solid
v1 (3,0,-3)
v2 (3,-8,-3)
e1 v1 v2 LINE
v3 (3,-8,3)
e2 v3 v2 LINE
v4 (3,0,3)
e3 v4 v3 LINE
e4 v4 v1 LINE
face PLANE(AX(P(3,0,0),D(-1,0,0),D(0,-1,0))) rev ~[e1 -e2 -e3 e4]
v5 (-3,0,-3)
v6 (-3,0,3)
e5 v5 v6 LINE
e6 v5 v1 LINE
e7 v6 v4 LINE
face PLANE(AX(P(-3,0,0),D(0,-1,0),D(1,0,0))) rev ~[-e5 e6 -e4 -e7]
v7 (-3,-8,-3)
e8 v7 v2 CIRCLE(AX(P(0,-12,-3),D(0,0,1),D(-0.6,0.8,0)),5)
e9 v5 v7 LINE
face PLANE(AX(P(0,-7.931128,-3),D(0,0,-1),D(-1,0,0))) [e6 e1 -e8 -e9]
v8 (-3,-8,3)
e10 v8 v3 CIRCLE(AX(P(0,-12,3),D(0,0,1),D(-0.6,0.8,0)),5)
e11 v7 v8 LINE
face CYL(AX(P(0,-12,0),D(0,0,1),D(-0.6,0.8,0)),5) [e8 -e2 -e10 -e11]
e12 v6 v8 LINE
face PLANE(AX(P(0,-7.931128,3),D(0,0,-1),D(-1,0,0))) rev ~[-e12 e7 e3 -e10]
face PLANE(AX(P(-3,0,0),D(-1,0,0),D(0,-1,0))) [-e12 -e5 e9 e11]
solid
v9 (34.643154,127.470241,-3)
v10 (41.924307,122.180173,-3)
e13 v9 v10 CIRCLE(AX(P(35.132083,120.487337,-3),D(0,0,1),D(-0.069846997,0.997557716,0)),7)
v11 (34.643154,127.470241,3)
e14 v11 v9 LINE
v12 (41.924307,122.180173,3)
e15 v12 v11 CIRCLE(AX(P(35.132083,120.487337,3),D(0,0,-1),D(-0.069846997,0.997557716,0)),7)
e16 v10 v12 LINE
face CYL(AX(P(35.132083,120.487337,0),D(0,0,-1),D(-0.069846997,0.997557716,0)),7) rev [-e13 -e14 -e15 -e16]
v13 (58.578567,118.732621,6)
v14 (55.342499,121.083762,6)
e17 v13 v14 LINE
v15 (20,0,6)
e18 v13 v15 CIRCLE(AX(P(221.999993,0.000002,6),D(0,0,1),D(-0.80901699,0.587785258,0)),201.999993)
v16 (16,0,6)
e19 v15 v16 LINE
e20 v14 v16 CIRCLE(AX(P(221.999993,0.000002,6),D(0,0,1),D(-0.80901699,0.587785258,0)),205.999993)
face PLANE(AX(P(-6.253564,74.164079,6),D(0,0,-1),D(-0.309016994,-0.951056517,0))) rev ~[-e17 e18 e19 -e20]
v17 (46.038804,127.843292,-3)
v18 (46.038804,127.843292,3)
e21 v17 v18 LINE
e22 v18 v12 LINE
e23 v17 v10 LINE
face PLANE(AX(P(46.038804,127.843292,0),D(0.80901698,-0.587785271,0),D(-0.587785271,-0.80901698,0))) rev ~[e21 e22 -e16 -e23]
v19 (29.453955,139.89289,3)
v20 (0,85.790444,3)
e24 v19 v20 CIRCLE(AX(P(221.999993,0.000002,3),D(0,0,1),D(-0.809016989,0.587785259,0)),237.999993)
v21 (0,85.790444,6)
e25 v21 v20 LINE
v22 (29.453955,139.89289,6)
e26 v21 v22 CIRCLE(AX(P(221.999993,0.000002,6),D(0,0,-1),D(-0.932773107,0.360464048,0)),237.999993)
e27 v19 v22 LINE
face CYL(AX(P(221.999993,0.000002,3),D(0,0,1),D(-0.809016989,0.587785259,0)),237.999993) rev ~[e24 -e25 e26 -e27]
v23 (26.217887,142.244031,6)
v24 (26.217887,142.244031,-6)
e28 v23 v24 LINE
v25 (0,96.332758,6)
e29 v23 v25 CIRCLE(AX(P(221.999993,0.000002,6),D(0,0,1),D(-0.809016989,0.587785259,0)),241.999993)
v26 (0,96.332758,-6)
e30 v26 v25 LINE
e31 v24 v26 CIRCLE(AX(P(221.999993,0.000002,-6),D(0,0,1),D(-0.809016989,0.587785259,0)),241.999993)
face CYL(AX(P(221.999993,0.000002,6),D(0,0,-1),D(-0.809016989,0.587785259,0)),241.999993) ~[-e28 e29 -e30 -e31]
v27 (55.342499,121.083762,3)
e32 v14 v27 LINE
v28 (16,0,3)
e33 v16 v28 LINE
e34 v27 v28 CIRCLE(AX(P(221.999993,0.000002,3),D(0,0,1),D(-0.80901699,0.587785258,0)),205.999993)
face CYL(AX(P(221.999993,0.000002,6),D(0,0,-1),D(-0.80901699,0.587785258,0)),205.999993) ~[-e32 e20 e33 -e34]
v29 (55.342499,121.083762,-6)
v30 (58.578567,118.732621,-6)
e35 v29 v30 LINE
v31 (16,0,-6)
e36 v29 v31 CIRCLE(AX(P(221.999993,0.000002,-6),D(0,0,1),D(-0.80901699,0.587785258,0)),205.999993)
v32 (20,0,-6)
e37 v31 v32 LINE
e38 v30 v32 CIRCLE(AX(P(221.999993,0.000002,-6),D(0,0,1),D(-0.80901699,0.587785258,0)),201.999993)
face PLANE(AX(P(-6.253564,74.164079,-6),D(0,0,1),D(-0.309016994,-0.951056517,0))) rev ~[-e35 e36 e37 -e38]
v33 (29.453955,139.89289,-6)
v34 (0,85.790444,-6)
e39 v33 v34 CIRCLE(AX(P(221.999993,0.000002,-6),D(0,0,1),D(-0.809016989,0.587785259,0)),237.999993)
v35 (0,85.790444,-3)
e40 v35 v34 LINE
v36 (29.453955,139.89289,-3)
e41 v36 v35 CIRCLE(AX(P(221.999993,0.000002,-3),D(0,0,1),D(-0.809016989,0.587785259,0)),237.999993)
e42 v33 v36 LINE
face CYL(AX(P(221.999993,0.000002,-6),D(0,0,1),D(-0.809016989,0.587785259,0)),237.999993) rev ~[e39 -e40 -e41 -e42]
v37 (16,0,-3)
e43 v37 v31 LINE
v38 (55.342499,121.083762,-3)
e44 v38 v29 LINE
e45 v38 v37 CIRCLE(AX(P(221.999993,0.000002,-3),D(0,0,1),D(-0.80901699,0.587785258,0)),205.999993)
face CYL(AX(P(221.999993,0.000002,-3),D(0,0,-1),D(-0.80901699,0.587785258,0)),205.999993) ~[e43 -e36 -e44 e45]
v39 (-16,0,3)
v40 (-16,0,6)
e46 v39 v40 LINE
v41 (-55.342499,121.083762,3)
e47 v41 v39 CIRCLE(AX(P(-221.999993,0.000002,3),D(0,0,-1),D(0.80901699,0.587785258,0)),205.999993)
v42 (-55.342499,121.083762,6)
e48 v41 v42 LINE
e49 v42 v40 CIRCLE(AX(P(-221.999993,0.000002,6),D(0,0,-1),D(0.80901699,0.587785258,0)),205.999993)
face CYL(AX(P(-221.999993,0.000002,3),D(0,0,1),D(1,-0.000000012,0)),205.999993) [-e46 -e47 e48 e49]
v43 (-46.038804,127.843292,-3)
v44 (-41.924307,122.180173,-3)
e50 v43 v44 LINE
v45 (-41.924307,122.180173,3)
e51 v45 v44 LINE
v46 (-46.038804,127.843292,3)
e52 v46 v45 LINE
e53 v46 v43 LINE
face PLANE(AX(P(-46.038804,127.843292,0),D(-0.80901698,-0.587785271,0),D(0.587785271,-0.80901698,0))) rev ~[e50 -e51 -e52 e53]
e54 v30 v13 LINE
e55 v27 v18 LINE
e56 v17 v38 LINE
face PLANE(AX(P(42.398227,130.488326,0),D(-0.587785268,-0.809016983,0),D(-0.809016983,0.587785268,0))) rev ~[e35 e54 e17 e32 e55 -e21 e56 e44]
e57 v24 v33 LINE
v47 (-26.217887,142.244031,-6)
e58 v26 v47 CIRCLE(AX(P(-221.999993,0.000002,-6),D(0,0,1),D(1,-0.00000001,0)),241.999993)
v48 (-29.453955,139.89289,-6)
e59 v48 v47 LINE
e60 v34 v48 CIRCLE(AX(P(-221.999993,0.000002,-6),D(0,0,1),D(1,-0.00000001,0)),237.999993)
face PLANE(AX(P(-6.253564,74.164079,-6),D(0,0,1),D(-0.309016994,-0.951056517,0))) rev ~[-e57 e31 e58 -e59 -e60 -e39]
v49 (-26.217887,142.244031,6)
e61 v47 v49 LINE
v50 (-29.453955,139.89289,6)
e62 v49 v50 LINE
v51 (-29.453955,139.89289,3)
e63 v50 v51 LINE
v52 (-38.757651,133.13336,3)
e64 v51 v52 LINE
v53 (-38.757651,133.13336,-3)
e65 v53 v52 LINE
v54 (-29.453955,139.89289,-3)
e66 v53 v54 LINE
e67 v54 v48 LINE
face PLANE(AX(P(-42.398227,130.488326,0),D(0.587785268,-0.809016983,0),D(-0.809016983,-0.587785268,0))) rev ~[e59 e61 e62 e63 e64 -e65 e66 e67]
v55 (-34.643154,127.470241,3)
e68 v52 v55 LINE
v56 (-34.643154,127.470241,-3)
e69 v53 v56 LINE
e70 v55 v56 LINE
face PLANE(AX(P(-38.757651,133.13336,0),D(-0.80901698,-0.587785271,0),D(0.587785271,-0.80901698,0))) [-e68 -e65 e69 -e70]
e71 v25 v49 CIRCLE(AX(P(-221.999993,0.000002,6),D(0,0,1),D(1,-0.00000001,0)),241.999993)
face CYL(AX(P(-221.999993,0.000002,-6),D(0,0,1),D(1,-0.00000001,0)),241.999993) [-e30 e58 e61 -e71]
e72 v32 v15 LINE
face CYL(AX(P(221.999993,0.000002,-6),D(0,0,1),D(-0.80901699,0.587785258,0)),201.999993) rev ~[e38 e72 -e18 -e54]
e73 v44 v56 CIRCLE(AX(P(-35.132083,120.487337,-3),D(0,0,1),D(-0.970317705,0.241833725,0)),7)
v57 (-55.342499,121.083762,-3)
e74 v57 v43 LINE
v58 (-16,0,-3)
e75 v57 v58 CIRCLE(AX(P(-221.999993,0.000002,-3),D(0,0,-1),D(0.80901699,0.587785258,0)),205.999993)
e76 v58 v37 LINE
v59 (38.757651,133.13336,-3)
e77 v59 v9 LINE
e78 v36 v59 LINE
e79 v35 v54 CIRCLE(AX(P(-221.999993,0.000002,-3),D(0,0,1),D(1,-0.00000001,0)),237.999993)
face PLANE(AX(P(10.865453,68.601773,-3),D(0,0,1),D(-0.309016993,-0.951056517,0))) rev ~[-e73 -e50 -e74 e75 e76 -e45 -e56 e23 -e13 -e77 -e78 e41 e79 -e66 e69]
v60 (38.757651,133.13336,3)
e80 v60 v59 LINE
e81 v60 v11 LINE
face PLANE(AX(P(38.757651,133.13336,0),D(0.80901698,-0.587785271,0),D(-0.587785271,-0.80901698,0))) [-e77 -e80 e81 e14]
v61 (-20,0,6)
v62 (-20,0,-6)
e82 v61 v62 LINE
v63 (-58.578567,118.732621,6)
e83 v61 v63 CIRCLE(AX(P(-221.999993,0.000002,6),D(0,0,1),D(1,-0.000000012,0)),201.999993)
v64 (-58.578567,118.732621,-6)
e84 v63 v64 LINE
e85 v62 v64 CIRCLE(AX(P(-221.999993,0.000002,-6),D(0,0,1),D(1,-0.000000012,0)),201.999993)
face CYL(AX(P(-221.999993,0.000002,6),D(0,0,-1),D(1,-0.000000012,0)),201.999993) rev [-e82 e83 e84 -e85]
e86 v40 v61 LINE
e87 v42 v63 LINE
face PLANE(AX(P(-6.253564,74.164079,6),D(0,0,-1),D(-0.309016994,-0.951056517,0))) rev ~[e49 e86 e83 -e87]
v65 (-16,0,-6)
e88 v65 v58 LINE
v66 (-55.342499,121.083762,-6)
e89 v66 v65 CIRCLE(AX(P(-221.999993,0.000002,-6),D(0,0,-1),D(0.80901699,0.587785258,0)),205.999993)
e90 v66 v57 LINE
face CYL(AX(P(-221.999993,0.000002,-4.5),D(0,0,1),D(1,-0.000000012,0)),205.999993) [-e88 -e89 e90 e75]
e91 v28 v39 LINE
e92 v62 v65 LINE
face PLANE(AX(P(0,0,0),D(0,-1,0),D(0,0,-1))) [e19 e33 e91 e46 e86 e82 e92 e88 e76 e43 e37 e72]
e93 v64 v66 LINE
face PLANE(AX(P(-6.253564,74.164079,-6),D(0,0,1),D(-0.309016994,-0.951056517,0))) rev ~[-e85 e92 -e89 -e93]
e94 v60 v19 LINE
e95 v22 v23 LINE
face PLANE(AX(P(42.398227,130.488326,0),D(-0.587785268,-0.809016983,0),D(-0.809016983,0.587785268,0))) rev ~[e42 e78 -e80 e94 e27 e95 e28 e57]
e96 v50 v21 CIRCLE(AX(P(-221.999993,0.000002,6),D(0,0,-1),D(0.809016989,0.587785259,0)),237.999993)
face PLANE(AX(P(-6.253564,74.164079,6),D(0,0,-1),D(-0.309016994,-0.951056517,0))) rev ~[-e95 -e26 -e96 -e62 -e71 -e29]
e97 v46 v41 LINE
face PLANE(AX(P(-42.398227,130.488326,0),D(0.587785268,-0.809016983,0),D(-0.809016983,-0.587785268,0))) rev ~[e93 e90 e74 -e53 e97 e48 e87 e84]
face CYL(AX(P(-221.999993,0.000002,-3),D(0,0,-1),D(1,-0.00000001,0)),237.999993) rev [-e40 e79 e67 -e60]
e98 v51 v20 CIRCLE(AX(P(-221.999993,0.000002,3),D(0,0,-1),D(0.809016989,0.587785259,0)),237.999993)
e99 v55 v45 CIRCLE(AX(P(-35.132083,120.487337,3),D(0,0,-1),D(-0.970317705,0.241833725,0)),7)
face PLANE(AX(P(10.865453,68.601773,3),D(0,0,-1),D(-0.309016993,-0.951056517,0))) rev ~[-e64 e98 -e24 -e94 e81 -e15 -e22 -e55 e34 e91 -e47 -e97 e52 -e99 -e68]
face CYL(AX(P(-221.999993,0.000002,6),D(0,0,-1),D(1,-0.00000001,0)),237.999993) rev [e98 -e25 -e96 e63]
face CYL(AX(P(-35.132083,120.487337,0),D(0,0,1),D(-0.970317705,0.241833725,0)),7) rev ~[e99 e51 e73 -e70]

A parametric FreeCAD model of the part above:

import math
import FreeCAD as App
import Part
import Sketcher

V = App.Vector
Q = App.Units.Quantity


def add_polygon(sketch, points):
    """Adds a closed chain of lines whose ends are joined by coincident constraints."""
    first, n = sketch.GeometryCount, len(points)
    for a, b in zip(points, points[1:] + points[:1]):
        sketch.addGeometry(Part.LineSegment(App.Vector(*a, 0), App.Vector(*b, 0)), False)
    for i in range(n):
        sketch.addConstraint(Sketcher.Constraint("Coincident", first + i, 2, first + (i + 1) % n, 1))

doc = App.newDocument("Part")
body = doc.addObject("PartDesign::Body", "Body")

sketch1 = body.newObject("Sketcher::SketchObject", "Sketch")
sketch1.AttachmentSupport = (doc.getObject("XZ_Plane"), [""])
sketch1.MapMode = "FlatFace"
add_polygon(sketch1, [(-20, 6), (-20, -6), (-16, -6), (-16, -3), (16, -3), (16, -6), (20, -6), (20, 6), (16, 6), (16, 3), (-16, 3), (-16, 6)])
sketch1.addConstraint([
    Sketcher.Constraint("Vertical", 0),
    Sketcher.Constraint("Horizontal", 1),
    Sketcher.Constraint("Vertical", 2),
    Sketcher.Constraint("Horizontal", 3),
    Sketcher.Constraint("Vertical", 4),
    Sketcher.Constraint("Horizontal", 5),
    Sketcher.Constraint("Vertical", 6),
    Sketcher.Constraint("Horizontal", 7),
    Sketcher.Constraint("Vertical", 8),
    Sketcher.Constraint("Horizontal", 9),
    Sketcher.Constraint("Vertical", 10),
    Sketcher.Constraint("Horizontal", 11),
    Sketcher.Constraint("Symmetric", 0, 2, 6, 2, -1, 1),
    Sketcher.Constraint("Symmetric", 2, 2, 8, 2, -1, 1),
    Sketcher.Constraint("Symmetric", 4, 2, 10, 2, -1, 1),
    Sketcher.Constraint("Symmetric", 1, 2, 4, 2, -2),
    Sketcher.Constraint("DistanceX", 1, 1, 1, 2, 4.0),
    Sketcher.Constraint("DistanceX", 3, 1, 3, 2, 32.0),
    Sketcher.Constraint("DistanceY", 0, 2, 0, 1, 12.0),
    Sketcher.Constraint("DistanceY", 2, 1, 2, 2, 3.0),
])

sketch2 = body.newObject("Sketcher::SketchObject", "Sketch001")
sketch2.AttachmentSupport = (doc.getObject("XY_Plane"), [""])
sketch2.MapMode = "FlatFace"
sketch2.addGeometry(Part.ArcOfCircle(Part.Circle(V(-221.999993, 0.000002, 0), V(0, 0, 1), 221.999993), math.radians(-0.000001), math.radians(36)), False)
sketch2.addConstraint([
    Sketcher.Constraint("Coincident", 0, 1, -1, 1),
    Sketcher.Constraint("Radius", 0, 221.999993),
    Sketcher.Constraint("DistanceX", 0, 2, -1, 1, 42.398227),
    Sketcher.Constraint("DistanceY", -1, 1, 0, 2, 130.488326),
])
doc.recompute()

additivepipe = body.newObject("PartDesign::AdditivePipe", "AdditivePipe")
additivepipe.Profile = sketch1
additivepipe.Spine = (sketch2, ["Edge1"])

sketch3 = body.newObject("Sketcher::SketchObject", "Sketch002")
sketch3.AttachmentSupport = (doc.getObject("XZ_Plane"), [""])
sketch3.MapMode = "FlatFace"
add_polygon(sketch3, [(-20, 6), (-20, -6), (-16, -6), (-16, -3), (16, -3), (16, -6), (20, -6), (20, 6), (16, 6), (16, 3), (-16, 3), (-16, 6)])
sketch3.addConstraint([
    Sketcher.Constraint("Vertical", 0),
    Sketcher.Constraint("Horizontal", 1),
    Sketcher.Constraint("Vertical", 2),
    Sketcher.Constraint("Horizontal", 3),
    Sketcher.Constraint("Vertical", 4),
    Sketcher.Constraint("Horizontal", 5),
    Sketcher.Constraint("Vertical", 6),
    Sketcher.Constraint("Horizontal", 7),
    Sketcher.Constraint("Vertical", 8),
    Sketcher.Constraint("Horizontal", 9),
    Sketcher.Constraint("Vertical", 10),
    Sketcher.Constraint("Horizontal", 11),
    Sketcher.Constraint("Symmetric", 0, 2, 6, 2, -1, 1),
    Sketcher.Constraint("Symmetric", 2, 2, 8, 2, -1, 1),
    Sketcher.Constraint("Symmetric", 4, 2, 10, 2, -1, 1),
    Sketcher.Constraint("Symmetric", 1, 2, 4, 2, -2),
    Sketcher.Constraint("DistanceX", 1, 1, 1, 2, 4.0),
    Sketcher.Constraint("DistanceX", 3, 1, 3, 2, 32.0),
    Sketcher.Constraint("DistanceY", 0, 2, 0, 1, 12.0),
    Sketcher.Constraint("DistanceY", 2, 1, 2, 2, 3.0),
])

sketch4 = body.newObject("Sketcher::SketchObject", "Sketch003")
sketch4.AttachmentSupport = (doc.getObject("XY_Plane"), [""])
sketch4.MapMode = "FlatFace"
sketch4.addGeometry(Part.ArcOfCircle(Part.Circle(V(221.999993, 0.000002, 0), V(0, 0, 1), 221.999993), math.radians(144), math.radians(180.000001)), False)
sketch4.addConstraint([
    Sketcher.Constraint("Coincident", 0, 2, -1, 1),
    Sketcher.Constraint("Radius", 0, 221.999993),
    Sketcher.Constraint("DistanceX", -1, 1, 0, 1, 42.398227),
    Sketcher.Constraint("DistanceY", -1, 1, 0, 1, 130.488326),
])
doc.recompute()

additivepipe2 = body.newObject("PartDesign::AdditivePipe", "AdditivePipe001")
additivepipe2.Profile = sketch3
additivepipe2.Spine = (sketch4, ["Edge1"])

sketch5 = body.newObject("Sketcher::SketchObject", "Sketch004")
sketch5.AttachmentSupport = (doc.getObject("XZ_Plane"), [""])
sketch5.MapMode = "FlatFace"
add_polygon(sketch5, [(-16, 6), (-16, 3), (16, 3), (16, 6)])
sketch5.addConstraint([
    Sketcher.Constraint("Vertical", 0),
    Sketcher.Constraint("Horizontal", 1),
    Sketcher.Constraint("Vertical", 2),
    Sketcher.Constraint("Horizontal", 3),
    Sketcher.Constraint("DistanceX", 1, 1, 1, 2, 32.0),
    Sketcher.Constraint("DistanceY", 0, 2, 0, 1, 3.0),
    Sketcher.Constraint("DistanceX", 0, 2, -1, 1, 16.0),
    Sketcher.Constraint("DistanceY", -1, 1, 0, 2, 3.0),
])

sketch6 = body.newObject("Sketcher::SketchObject", "Sketch005")
sketch6.AttachmentSupport = (doc.getObject("XY_Plane"), [""])
sketch6.MapMode = "FlatFace"
sketch6.addGeometry(Part.ArcOfCircle(Part.Circle(V(-221.999993, 0.000002, 0), V(0, 0, 1), 221.999993), math.radians(-0.000001), math.radians(36)), False)
sketch6.addConstraint([
    Sketcher.Constraint("Coincident", 0, 1, -1, 1),
    Sketcher.Constraint("Radius", 0, 221.999993),
    Sketcher.Constraint("DistanceX", 0, 2, -1, 1, 42.398227),
    Sketcher.Constraint("DistanceY", -1, 1, 0, 2, 130.488326),
])
doc.recompute()

subtractivepipe = body.newObject("PartDesign::SubtractivePipe", "SubtractivePipe")
subtractivepipe.Profile = sketch5
subtractivepipe.Spine = (sketch6, ["Edge1"])

sketch7 = body.newObject("Sketcher::SketchObject", "Sketch006")
sketch7.AttachmentSupport = (doc.getObject("XZ_Plane"), [""])
sketch7.MapMode = "FlatFace"
add_polygon(sketch7, [(-16, 6), (-16, 3), (16, 3), (16, 6)])
sketch7.addConstraint([
    Sketcher.Constraint("Vertical", 0),
    Sketcher.Constraint("Horizontal", 1),
    Sketcher.Constraint("Vertical", 2),
    Sketcher.Constraint("Horizontal", 3),
    Sketcher.Constraint("DistanceX", 1, 1, 1, 2, 32.0),
    Sketcher.Constraint("DistanceY", 0, 2, 0, 1, 3.0),
    Sketcher.Constraint("DistanceX", 0, 2, -1, 1, 16.0),
    Sketcher.Constraint("DistanceY", -1, 1, 0, 2, 3.0),
])

sketch8 = body.newObject("Sketcher::SketchObject", "Sketch007")
sketch8.AttachmentSupport = (doc.getObject("XY_Plane"), [""])
sketch8.MapMode = "FlatFace"
sketch8.addGeometry(Part.ArcOfCircle(Part.Circle(V(221.999993, 0.000002, 0), V(0, 0, 1), 221.999993), math.radians(144), math.radians(180.000001)), False)
sketch8.addConstraint([
    Sketcher.Constraint("Coincident", 0, 2, -1, 1),
    Sketcher.Constraint("Radius", 0, 221.999993),
    Sketcher.Constraint("DistanceX", -1, 1, 0, 1, 42.398227),
    Sketcher.Constraint("DistanceY", -1, 1, 0, 1, 130.488326),
])
doc.recompute()

subtractivepipe2 = body.newObject("PartDesign::SubtractivePipe", "SubtractivePipe001")
subtractivepipe2.Profile = sketch7
subtractivepipe2.Spine = (sketch8, ["Edge1"])
doc.recompute()

mirrored = body.newObject("PartDesign::Mirrored", "Mirrored")
mirrored.Originals = [subtractivepipe]
mirrored.MirrorPlane = (doc.getObject("XY_Plane"), [""])
body.Tip = mirrored
doc.recompute()

mirrored2 = body.newObject("PartDesign::Mirrored", "Mirrored001")
mirrored2.Originals = [subtractivepipe2]
mirrored2.MirrorPlane = (doc.getObject("XY_Plane"), [""])
body.Tip = mirrored2

sketch9 = body.newObject("Sketcher::SketchObject", "Sketch008")
sketch9.AttachmentSupport = (doc.getObject("XY_Plane"), [""])
sketch9.MapMode = "FlatFace"
sketch9.addGeometry([
    Part.LineSegment(V(46.038804, 127.843292, 0), V(38.757651, 133.13336, 0)),
    Part.LineSegment(V(38.757651, 133.13336, 0), V(34.643154, 127.470241, 0)),
    Part.ArcOfCircle(Part.Circle(V(35.132083, 120.487337, 0), V(0, 0, 1), 7), math.radians(94.005199), math.radians(373.994794)),
    Part.LineSegment(V(41.924307, 122.180173, 0), V(46.038804, 127.843292, 0)),
], False)
sketch9.addConstraint([
    Sketcher.Constraint("Coincident", 0, 2, 1, 1),
    Sketcher.Constraint("Coincident", 1, 2, 2, 1),
    Sketcher.Constraint("Coincident", 2, 2, 3, 1),
    Sketcher.Constraint("Coincident", 3, 2, 0, 1),
    Sketcher.Constraint("Perpendicular", 0, 1),
    Sketcher.Constraint("Parallel", 1, 3),
    Sketcher.Constraint("Equal", 1, 3),
    Sketcher.Constraint("Radius", 2, 7.0),
    Sketcher.Constraint("Angle", 0, Q("143.999996 deg")),
    Sketcher.Constraint("Distance", 0, 9.0),
    Sketcher.Constraint("Distance", 1, 7.0),
    Sketcher.Constraint("DistanceX", -1, 1, 0, 2, 38.757651),
    Sketcher.Constraint("DistanceY", -1, 1, 0, 2, 133.13336),
])
pocket1 = body.newObject("PartDesign::Pocket", "Pocket")
pocket1.Profile = sketch9
pocket1.Type = "ThroughAll"
pocket1.Midplane = True

sketch10 = body.newObject("Sketcher::SketchObject", "Sketch009")
sketch10.AttachmentSupport = (doc.getObject("XY_Plane"), [""])
sketch10.MapMode = "FlatFace"
sketch10.addGeometry([
    Part.LineSegment(V(-38.757651, 133.13336, 0), V(-46.038804, 127.843292, 0)),
    Part.LineSegment(V(-46.038804, 127.843292, 0), V(-41.924307, 122.180173, 0)),
    Part.ArcOfCircle(Part.Circle(V(-35.132083, 120.487337, 0), V(0, 0, 1), 7), math.radians(166.005206), math.radians(445.994801)),
    Part.LineSegment(V(-34.643154, 127.470241, 0), V(-38.757651, 133.13336, 0)),
], False)
sketch10.addConstraint([
    Sketcher.Constraint("Coincident", 0, 2, 1, 1),
    Sketcher.Constraint("Coincident", 1, 2, 2, 1),
    Sketcher.Constraint("Coincident", 2, 2, 3, 1),
    Sketcher.Constraint("Coincident", 3, 2, 0, 1),
    Sketcher.Constraint("Perpendicular", 0, 1),
    Sketcher.Constraint("Parallel", 1, 3),
    Sketcher.Constraint("Equal", 1, 3),
    Sketcher.Constraint("Radius", 2, 7.0),
    Sketcher.Constraint("Angle", 0, Q("-143.999996 deg")),
    Sketcher.Constraint("Distance", 0, 9.0),
    Sketcher.Constraint("Distance", 1, 7.0),
    Sketcher.Constraint("DistanceY", -1, 1, 2, 2, 127.470241),
    Sketcher.Constraint("DistanceX", 3, 2, -1, 1, 38.757651),
])
pocket2 = body.newObject("PartDesign::Pocket", "Pocket001")
pocket2.Profile = sketch10
pocket2.Type = "ThroughAll"
pocket2.Midplane = True
body2 = doc.addObject("PartDesign::Body", "Body001")

sketch11 = body2.newObject("Sketcher::SketchObject", "Sketch010")
sketch11.AttachmentSupport = (doc.getObject("XY_Plane001"), [""])
sketch11.MapMode = "FlatFace"
sketch11.addGeometry([
    Part.LineSegment(V(3, 0, 0), V(-3, 0, 0)),
    Part.LineSegment(V(-3, 0, 0), V(-3, -8, 0)),
    Part.ArcOfCircle(Part.Circle(V(0, -12, 0), V(0, 0, 1), 5), math.radians(126.869898), math.radians(413.130102)),
    Part.LineSegment(V(3, -8, 0), V(3, 0, 0)),
], False)
sketch11.addConstraint([
    Sketcher.Constraint("Coincident", 0, 2, 1, 1),
    Sketcher.Constraint("Coincident", 1, 2, 2, 1),
    Sketcher.Constraint("Coincident", 2, 2, 3, 1),
    Sketcher.Constraint("Coincident", 3, 2, 0, 1),
    Sketcher.Constraint("Horizontal", 0),
    Sketcher.Constraint("Vertical", 1),
    Sketcher.Constraint("Vertical", 3),
    Sketcher.Constraint("Symmetric", 0, 2, 3, 2, -1, 1),
    Sketcher.Constraint("PointOnObject", 2, 3, -2),
    Sketcher.Constraint("Radius", 2, 5.0),
    Sketcher.Constraint("DistanceX", 0, 2, 0, 1, 6.0),
    Sketcher.Constraint("DistanceY", 1, 2, 1, 1, 8.0),
])
pad1 = body2.newObject("PartDesign::Pad", "Pad")
pad1.Profile = sketch11
pad1.Length = 6
pad1.Midplane = True

doc.recompute()
